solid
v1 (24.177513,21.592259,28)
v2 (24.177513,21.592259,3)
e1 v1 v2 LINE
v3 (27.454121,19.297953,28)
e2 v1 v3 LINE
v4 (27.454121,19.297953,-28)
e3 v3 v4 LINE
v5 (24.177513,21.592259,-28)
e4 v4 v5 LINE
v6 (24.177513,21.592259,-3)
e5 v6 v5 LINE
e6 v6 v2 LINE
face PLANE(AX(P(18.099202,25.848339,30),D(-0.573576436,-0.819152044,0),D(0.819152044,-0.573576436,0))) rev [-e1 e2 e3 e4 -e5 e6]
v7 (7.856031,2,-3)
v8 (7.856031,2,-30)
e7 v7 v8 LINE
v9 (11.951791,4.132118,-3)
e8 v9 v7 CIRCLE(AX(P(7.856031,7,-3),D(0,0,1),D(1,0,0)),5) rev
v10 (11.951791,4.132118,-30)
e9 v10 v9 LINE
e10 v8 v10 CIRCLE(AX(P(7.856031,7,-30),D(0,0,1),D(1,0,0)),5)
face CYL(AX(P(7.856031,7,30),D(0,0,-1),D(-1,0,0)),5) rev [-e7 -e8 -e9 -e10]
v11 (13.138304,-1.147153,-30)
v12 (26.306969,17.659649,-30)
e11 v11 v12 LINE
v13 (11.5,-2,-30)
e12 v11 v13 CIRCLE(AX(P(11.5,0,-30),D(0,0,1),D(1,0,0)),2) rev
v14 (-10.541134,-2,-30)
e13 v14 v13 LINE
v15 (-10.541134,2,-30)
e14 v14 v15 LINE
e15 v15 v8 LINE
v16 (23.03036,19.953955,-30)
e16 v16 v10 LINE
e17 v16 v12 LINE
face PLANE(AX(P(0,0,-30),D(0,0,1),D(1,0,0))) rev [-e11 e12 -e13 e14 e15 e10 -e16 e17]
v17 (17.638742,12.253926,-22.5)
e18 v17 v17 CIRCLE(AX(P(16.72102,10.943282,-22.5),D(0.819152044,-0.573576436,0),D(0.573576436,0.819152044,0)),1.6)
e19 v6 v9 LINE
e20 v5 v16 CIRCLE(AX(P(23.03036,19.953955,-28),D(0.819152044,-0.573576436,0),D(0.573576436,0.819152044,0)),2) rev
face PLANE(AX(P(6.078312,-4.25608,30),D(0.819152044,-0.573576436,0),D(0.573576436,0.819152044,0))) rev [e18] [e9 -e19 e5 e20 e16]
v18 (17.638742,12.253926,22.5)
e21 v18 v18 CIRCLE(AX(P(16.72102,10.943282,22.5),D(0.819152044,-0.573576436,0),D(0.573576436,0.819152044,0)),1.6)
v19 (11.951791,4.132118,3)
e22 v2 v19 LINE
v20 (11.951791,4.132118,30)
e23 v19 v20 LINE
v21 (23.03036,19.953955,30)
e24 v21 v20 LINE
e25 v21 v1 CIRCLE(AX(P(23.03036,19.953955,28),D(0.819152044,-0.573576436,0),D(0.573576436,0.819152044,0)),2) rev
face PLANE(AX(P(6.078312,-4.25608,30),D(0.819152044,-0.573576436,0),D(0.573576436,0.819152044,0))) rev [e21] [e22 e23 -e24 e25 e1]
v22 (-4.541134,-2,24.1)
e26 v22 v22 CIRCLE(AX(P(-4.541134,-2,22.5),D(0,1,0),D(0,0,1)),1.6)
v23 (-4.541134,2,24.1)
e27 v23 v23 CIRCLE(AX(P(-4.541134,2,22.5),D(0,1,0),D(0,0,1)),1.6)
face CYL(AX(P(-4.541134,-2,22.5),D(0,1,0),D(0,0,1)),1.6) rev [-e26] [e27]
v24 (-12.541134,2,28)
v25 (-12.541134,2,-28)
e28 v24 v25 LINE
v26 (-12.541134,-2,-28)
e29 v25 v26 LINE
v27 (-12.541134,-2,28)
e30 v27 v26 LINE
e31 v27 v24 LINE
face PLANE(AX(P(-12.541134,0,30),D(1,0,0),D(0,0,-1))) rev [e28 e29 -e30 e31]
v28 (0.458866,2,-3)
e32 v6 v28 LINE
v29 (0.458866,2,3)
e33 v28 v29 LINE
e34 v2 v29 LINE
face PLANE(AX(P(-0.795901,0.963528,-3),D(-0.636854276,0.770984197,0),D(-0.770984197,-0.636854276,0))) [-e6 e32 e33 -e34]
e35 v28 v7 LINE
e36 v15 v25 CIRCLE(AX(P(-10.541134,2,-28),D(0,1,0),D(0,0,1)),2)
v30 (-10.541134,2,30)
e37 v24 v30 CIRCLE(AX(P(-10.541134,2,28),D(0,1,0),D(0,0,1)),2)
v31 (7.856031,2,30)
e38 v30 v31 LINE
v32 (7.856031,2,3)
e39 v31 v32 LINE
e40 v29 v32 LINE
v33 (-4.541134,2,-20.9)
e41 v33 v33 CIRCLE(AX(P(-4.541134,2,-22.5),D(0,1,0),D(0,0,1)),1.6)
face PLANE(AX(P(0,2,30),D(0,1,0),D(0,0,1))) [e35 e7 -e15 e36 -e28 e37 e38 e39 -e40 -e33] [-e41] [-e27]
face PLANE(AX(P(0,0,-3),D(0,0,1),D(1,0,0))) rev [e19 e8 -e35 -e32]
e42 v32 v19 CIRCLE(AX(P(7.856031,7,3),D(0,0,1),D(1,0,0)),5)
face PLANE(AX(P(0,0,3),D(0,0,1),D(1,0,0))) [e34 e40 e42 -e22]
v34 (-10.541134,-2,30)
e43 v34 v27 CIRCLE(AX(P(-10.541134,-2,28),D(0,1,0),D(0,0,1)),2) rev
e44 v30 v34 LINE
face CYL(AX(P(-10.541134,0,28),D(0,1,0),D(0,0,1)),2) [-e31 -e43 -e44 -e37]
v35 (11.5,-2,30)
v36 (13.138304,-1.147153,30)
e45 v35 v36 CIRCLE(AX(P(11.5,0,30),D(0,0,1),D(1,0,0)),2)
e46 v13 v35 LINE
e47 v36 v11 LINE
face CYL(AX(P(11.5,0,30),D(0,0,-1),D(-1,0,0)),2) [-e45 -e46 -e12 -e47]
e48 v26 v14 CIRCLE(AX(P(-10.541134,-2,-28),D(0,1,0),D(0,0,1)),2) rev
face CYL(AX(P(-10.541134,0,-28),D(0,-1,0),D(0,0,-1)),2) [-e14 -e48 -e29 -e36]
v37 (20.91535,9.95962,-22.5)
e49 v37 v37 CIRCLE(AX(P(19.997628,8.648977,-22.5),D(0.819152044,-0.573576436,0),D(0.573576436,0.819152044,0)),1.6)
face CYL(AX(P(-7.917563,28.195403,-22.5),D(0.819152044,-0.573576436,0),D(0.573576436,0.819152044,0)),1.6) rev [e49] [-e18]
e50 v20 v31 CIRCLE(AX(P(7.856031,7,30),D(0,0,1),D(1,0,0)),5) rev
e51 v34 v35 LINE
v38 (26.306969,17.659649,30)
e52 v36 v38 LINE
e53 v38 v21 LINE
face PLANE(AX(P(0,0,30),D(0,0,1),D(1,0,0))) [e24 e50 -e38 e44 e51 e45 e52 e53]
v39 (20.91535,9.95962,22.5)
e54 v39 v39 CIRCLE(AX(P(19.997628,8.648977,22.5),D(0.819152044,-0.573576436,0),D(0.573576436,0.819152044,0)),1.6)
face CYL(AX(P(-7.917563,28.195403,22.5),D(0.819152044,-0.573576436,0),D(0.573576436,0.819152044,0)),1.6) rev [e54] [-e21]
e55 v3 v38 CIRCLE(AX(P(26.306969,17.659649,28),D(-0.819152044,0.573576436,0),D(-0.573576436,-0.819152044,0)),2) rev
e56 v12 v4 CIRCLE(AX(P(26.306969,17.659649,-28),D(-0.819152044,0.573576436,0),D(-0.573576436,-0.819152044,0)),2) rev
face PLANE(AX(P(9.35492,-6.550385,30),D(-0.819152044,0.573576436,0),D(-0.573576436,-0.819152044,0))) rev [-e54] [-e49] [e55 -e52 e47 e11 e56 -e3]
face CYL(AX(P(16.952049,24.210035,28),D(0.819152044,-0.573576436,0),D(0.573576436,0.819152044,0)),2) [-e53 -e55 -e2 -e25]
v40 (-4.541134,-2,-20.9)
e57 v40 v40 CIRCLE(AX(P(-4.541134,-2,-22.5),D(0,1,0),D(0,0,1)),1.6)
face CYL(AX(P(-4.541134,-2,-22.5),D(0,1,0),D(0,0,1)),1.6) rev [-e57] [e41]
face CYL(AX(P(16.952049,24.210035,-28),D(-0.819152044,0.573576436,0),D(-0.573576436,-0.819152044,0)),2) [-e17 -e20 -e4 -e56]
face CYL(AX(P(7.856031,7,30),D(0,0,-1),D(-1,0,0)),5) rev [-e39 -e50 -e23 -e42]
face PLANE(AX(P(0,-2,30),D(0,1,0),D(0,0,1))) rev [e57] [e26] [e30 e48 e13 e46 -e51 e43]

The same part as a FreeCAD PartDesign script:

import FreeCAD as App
import Part
import Sketcher
from FreeCAD import Vector
Q = App.Units.Quantity


def edges_at(feature, points):
    """Names of the edges that pass closest to the given points."""
    edges = feature.Shape.Edges
    near = lambda p: min(range(len(edges)), key=lambda i: edges[i].distToShape(Part.Vertex(*p))[0])
    return sorted({f"Edge{near(p) + 1}" for p in points})

doc = App.newDocument("Part")
body = doc.addObject("PartDesign::Body", "Body")

sketch1 = doc.addObject("Sketcher::SketchObject", "Sketch")
body.addObject(sketch1)
sketch1.AttachmentSupport = (doc.XY_Plane, [""])
sketch1.MapMode = "FlatFace"
sketch1.addGeometry([
    Part.LineSegment(Vector(12.5, -2, 0), Vector(27.5, 19.3, 0)),
    Part.LineSegment(Vector(27.5, 19.3, 0), Vector(24.2, 21.6, 0)),
    Part.LineSegment(Vector(24.2, 21.6, 0), Vector(10.5, 2, 0)),
    Part.LineSegment(Vector(10.5, 2, 0), Vector(-12.5, 2, 0)),
    Part.LineSegment(Vector(-12.5, 2, 0), Vector(-12.5, -2, 0)),
    Part.LineSegment(Vector(-12.5, -2, 0), Vector(12.5, -2, 0)),
], False)
sketch1.addConstraint([
    Sketcher.Constraint("Coincident", 0, 2, 1, 1),
    Sketcher.Constraint("Coincident", 1, 2, 2, 1),
    Sketcher.Constraint("Coincident", 2, 2, 3, 1),
    Sketcher.Constraint("Coincident", 3, 2, 4, 1),
    Sketcher.Constraint("Coincident", 4, 2, 5, 1),
    Sketcher.Constraint("Coincident", 5, 2, 0, 1),
    Sketcher.Constraint("Horizontal", 3),
    Sketcher.Constraint("Vertical", 4),
    Sketcher.Constraint("Horizontal", 5),
    Sketcher.Constraint("Symmetric", 3, 2, 5, 2, -1, 1),
    Sketcher.Constraint("Perpendicular", 0, 1),
    Sketcher.Constraint("Perpendicular", 1, 2),
    Sketcher.Constraint("DistanceX", 3, 2, 3, 1, 23.0),
    Sketcher.Constraint("DistanceY", 4, 2, 4, 1, 4.0),
    Sketcher.Constraint("Angle", 0, Q("55 deg")),
    Sketcher.Constraint("Distance", 0, 26.0),
    Sketcher.Constraint("Distance", 1, 4.0),
])
pad1 = doc.addObject("PartDesign::Pad", "Pad")
body.addObject(pad1)
pad1.Profile = sketch1
pad1.Type = "TwoLengths"
pad1.Length = 30
pad1.Length2 = 30

sketch2 = doc.addObject("Sketcher::SketchObject", "Sketch001")
body.addObject(sketch2)
sketch2.AttachmentSupport = (doc.XY_Plane, [""])
sketch2.MapMode = "FlatFace"
sketch2.addGeometry([
    Part.LineSegment(Vector(10, 2, 0), Vector(24, 22, 0)),
    Part.LineSegment(Vector(24, 22, 0), Vector(0, 2, 0)),
    Part.LineSegment(Vector(0, 2, 0), Vector(10, 2, 0)),
], False)
sketch2.addConstraint([
    Sketcher.Constraint("Coincident", 0, 2, 1, 1),
    Sketcher.Constraint("Coincident", 1, 2, 2, 1),
    Sketcher.Constraint("Coincident", 2, 2, 0, 1),
    Sketcher.Constraint("Horizontal", 2),
    Sketcher.Constraint("DistanceX", 2, 1, 2, 2, 10.0),
    Sketcher.Constraint("Angle", 0, Q("55 deg")),
    Sketcher.Constraint("DistanceY", -1, 1, 1, 2, 2.0),
    Sketcher.Constraint("Distance", 0, 23.917732),
    Sketcher.Constraint("DistanceX", -1, 1, 0, 2, 24.177513),
])
pad2 = doc.addObject("PartDesign::Pad", "Pad001")
body.addObject(pad2)
pad2.Profile = sketch2
pad2.Type = "TwoLengths"
pad2.Length = 3
pad2.Length2 = 3

sketch3 = doc.addObject("Sketcher::SketchObject", "Sketch002")
body.addObject(sketch3)
sketch3.Placement = App.Placement(Vector(9.35492, -6.550385, 0), App.Rotation(Vector(0, 0, -1), Vector(0.573576436, 0.819152044, 0), Vector(0.819152044, -0.573576436, 0), "ZXY"))
sketch3.addGeometry([
    Part.Circle(Vector(-22.5, 18.6, 0), Vector(0, 0, 1), 1.6),
    Part.Circle(Vector(22.5, 18.6, 0), Vector(0, 0, 1), 1.6),
], False)
sketch3.addConstraint([
    Sketcher.Constraint("Equal", 0, 1),
    Sketcher.Constraint("Symmetric", 0, 3, 1, 3, -2),
    Sketcher.Constraint("Diameter", 0, 3.2),
    Sketcher.Constraint("DistanceX", 0, 3, 1, 3, 45.0),
    Sketcher.Constraint("DistanceY", -1, 1, 0, 3, 18.554995),
])
pocket1 = doc.addObject("PartDesign::Pocket", "Pocket")
body.addObject(pocket1)
pocket1.Profile = sketch3
pocket1.Type = "ThroughAll"

sketch4 = doc.addObject("Sketcher::SketchObject", "Sketch003")
body.addObject(sketch4)
sketch4.AttachmentSupport = (doc.XZ_Plane, [""])
sketch4.MapMode = "FlatFace"
sketch4.AttachmentOffset = App.Placement(Vector(0, 0, -2), App.Rotation())
sketch4.addGeometry([
    Part.Circle(Vector(-4.5, -22.5, 0), Vector(0, 0, 1), 1.6),
    Part.Circle(Vector(-4.5, 22.5, 0), Vector(0, 0, 1), 1.6),
], False)
sketch4.addConstraint([
    Sketcher.Constraint("Equal", 0, 1),
    Sketcher.Constraint("Symmetric", 0, 3, 1, 3, -1),
    Sketcher.Constraint("Diameter", 0, 3.2),
    Sketcher.Constraint("DistanceY", 0, 3, 1, 3, 45.0),
    Sketcher.Constraint("DistanceX", 0, 3, -1, 1, 4.541134),
])
pocket2 = doc.addObject("PartDesign::Pocket", "Pocket001")
body.addObject(pocket2)
pocket2.Profile = sketch4
pocket2.Type = "ThroughAll"
pocket2.Reversed = True
doc.recompute()

fillet = doc.addObject("PartDesign::Fillet", "Fillet")
body.addObject(fillet)
fillet.Base = (pocket2, edges_at(pocket2, [(10.459, 2, 16.5), (10.459, 2, -16.5)]))
fillet.Radius = 5
doc.recompute()

fillet2 = doc.addObject("PartDesign::Fillet", "Fillet001")
body.addObject(fillet2)
fillet2.Base = (fillet, edges_at(fillet, [(12.541, -2, 0), (25.816, 20.445, -30), (25.816, 20.445, 30)]))
fillet2.Radius = 2
doc.recompute()

fillet3 = doc.addObject("PartDesign::Fillet", "Fillet002")
body.addObject(fillet3)
fillet3.Base = (fillet2, edges_at(fillet2, [(-12.541, 0, 30), (-12.541, 0, -30)]))
fillet3.Radius = 2

doc.recompute()
